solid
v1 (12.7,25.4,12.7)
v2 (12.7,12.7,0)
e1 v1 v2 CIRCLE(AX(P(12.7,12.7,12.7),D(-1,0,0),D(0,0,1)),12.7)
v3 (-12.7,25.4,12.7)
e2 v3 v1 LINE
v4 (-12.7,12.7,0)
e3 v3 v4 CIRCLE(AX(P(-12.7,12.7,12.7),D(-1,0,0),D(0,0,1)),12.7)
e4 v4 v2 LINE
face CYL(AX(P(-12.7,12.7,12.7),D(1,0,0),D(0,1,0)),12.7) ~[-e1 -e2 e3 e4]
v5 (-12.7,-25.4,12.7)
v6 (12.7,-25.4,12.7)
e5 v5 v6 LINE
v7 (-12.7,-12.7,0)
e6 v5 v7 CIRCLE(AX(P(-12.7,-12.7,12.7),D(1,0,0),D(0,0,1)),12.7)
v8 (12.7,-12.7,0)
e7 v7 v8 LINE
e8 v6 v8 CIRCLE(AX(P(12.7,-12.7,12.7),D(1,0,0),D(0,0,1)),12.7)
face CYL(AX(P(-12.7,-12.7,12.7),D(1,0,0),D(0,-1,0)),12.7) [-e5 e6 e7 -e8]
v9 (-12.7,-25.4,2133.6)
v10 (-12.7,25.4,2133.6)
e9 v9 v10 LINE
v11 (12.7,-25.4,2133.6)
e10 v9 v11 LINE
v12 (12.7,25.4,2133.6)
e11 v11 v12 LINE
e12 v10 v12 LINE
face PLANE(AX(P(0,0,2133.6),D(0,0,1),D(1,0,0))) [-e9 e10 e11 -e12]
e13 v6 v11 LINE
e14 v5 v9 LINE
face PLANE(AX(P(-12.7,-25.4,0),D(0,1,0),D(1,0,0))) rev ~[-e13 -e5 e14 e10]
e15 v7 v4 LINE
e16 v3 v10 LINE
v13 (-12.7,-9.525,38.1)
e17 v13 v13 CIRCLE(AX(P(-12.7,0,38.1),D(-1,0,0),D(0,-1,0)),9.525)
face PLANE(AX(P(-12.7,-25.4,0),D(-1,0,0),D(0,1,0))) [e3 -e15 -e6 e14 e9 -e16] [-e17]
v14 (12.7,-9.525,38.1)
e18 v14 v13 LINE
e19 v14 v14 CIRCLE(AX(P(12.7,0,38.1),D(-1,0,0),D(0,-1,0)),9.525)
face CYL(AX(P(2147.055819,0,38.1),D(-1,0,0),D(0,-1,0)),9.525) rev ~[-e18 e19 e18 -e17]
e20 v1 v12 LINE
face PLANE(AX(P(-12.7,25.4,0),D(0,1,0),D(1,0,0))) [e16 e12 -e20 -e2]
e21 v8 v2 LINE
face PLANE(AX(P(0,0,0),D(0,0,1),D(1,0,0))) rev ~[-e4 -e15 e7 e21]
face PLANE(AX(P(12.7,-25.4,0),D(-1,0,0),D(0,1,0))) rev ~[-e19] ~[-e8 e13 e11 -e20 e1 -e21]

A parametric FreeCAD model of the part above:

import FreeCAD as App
import Part
import Sketcher
Q = App.Units.Quantity


def edges_at(feature, points):
    """Names of the edges that pass closest to the given points."""
    edges = feature.Shape.Edges
    near = lambda p: min(range(len(edges)), key=lambda i: edges[i].distToShape(Part.Vertex(*p))[0])
    return sorted({f"Edge{near(p) + 1}" for p in points})


def add_polygon(sketch, points):
    """Adds a closed chain of lines whose ends are joined by coincident constraints."""
    first, n = sketch.GeometryCount, len(points)
    for a, b in zip(points, points[1:] + points[:1]):
        sketch.addGeometry(Part.LineSegment(App.Vector(*a, 0), App.Vector(*b, 0)), False)
    for i in range(n):
        sketch.addConstraint(Sketcher.Constraint("Coincident", first + i, 2, first + (i + 1) % n, 1))

doc = App.newDocument("Part")
body = doc.addObject("PartDesign::Body", "Body")

sketch1 = doc.addObject("Sketcher::SketchObject", "Sketch")
body.addObject(sketch1)
sketch1.AttachmentSupport = (doc.XY_Plane, [""])
sketch1.MapMode = "FlatFace"
add_polygon(sketch1, [(-13, 25), (-13, -25), (13, -25), (13, 25)])
sketch1.addConstraint([
    Sketcher.Constraint("Vertical", 0),
    Sketcher.Constraint("Horizontal", 1),
    Sketcher.Constraint("Vertical", 2),
    Sketcher.Constraint("Horizontal", 3),
    Sketcher.Constraint("Symmetric", 0, 2, 2, 2, -1, 1),
    Sketcher.Constraint("DistanceX", 1, 1, 1, 2, Q("1 in")),
    Sketcher.Constraint("DistanceY", 0, 2, 0, 1, Q("2 in")),
])
pad1 = doc.addObject("PartDesign::Pad", "Pad")
body.addObject(pad1)
pad1.Profile = sketch1
pad1.Length = Q("84 in")
doc.recompute()

fillet = doc.addObject("PartDesign::Fillet", "Fillet")
body.addObject(fillet)
fillet.Base = (pad1, edges_at(pad1, [(0, -25.4, 0), (0, 25.4, 0)]))
fillet.Radius = Q("0.5 in")

sketch2 = doc.addObject("Sketcher::SketchObject", "Sketch001")
body.addObject(sketch2)
sketch2.AttachmentSupport = (doc.YZ_Plane, [""])
sketch2.MapMode = "FlatFace"
sketch2.AttachmentOffset = App.Placement(App.Vector(0, 0, 0.5 * 25.4), App.Rotation())
sketch2.addGeometry(Part.Circle(App.Vector(0, 38, 0), App.Vector(0, 0, 1), 10), False)
sketch2.addConstraint([
    Sketcher.Constraint("PointOnObject", 0, 3, -2),
    Sketcher.Constraint("Diameter", 0, Q("0.75 in")),
    Sketcher.Constraint("DistanceY", -1, 1, 0, 3, Q("1.5 in")),
])
doc.recompute()
hole = doc.addObject("PartDesign::Hole", "Hole")
body.addObject(hole)
hole.Profile = sketch2
hole.ThreadType = "None"
hole.Diameter = Q("0.75 in")
hole.DepthType = "ThroughAll"

doc.recompute()
